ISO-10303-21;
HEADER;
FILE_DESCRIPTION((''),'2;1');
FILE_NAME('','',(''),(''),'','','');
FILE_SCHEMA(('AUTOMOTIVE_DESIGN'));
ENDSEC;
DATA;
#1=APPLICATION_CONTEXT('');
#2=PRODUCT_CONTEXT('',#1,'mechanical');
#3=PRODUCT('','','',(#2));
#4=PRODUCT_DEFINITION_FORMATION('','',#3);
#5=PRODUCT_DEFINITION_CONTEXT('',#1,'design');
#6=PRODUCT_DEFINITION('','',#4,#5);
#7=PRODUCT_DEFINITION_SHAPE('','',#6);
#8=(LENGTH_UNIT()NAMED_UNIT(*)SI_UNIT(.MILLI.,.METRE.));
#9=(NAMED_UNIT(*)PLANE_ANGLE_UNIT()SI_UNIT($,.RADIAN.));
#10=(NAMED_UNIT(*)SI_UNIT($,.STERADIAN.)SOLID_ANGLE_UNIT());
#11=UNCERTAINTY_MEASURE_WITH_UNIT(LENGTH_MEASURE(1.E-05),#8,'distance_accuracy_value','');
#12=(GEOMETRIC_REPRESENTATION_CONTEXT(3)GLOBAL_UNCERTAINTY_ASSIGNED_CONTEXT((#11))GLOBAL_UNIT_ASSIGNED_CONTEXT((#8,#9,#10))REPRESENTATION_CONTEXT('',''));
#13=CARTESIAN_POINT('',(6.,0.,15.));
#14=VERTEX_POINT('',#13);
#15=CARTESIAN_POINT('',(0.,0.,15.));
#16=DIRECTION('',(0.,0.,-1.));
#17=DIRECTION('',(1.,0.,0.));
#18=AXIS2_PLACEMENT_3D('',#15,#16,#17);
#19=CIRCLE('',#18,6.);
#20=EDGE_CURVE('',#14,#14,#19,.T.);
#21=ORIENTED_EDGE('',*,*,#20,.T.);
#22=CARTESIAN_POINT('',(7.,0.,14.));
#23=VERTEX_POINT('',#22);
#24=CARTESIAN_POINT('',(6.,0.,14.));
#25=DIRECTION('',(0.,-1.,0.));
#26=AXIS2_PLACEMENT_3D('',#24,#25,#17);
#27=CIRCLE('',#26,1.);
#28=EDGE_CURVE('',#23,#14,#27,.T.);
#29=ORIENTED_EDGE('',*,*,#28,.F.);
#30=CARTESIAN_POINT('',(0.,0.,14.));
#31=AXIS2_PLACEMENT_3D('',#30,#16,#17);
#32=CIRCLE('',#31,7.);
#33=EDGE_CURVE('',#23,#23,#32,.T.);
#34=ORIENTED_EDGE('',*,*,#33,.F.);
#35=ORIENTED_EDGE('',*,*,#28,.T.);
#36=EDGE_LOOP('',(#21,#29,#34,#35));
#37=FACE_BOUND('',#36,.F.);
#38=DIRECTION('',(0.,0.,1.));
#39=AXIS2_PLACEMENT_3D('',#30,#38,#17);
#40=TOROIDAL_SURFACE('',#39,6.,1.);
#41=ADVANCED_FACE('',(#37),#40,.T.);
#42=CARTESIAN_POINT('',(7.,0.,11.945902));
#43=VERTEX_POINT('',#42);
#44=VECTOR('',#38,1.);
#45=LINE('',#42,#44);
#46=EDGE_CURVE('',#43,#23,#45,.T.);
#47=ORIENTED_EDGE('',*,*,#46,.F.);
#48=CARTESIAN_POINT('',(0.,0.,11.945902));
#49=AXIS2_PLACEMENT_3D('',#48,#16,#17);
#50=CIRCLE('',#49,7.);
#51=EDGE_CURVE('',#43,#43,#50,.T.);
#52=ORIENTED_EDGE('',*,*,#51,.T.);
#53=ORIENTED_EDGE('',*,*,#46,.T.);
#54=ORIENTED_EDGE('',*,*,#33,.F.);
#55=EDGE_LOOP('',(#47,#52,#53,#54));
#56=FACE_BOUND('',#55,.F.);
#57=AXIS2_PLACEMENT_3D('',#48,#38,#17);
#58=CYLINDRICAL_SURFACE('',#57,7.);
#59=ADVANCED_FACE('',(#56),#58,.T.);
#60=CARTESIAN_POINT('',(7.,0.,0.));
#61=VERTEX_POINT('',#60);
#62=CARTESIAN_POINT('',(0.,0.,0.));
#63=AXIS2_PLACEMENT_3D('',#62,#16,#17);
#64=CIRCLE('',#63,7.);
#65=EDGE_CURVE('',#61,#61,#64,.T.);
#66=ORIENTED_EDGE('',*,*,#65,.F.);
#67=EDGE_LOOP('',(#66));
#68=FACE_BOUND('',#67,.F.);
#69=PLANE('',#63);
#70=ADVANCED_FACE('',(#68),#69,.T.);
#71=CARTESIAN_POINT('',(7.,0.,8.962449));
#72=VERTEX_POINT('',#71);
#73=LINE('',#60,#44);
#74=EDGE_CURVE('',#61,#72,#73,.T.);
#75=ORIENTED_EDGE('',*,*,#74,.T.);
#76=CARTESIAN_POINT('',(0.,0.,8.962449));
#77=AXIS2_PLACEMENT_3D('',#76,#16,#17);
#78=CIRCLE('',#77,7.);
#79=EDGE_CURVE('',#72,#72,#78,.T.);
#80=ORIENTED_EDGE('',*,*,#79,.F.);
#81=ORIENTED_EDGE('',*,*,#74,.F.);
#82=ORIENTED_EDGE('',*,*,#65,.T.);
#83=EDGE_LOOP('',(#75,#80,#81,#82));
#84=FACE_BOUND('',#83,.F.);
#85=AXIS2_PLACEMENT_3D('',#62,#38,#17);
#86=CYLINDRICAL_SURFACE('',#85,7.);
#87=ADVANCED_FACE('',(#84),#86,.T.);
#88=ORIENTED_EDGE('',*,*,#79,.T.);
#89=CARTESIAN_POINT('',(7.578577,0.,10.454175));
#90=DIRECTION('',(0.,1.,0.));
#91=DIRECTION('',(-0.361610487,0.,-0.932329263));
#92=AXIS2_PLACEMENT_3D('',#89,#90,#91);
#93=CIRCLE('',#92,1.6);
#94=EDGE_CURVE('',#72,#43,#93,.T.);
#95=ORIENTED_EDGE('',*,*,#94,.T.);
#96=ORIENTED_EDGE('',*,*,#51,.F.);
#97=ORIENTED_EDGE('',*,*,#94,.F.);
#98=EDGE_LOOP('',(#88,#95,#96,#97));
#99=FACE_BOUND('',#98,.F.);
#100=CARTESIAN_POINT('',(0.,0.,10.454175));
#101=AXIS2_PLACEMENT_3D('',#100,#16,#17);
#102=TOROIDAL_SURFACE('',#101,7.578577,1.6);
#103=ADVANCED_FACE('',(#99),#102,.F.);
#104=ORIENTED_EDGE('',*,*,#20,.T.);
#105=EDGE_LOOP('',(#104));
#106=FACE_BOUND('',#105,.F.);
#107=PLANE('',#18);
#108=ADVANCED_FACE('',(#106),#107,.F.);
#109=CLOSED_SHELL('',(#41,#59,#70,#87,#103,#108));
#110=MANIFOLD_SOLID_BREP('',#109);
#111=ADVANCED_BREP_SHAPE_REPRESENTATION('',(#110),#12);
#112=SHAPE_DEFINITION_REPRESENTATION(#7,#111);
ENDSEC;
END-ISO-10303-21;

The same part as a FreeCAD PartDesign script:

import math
import FreeCAD as App
import Part
import Sketcher
Q = App.Units.Quantity


def edges_at(feature, points):
    """Names of the edges that pass closest to the given points."""
    edges = feature.Shape.Edges
    near = lambda p: min(range(len(edges)), key=lambda i: edges[i].distToShape(Part.Vertex(*p))[0])
    return sorted({f"Edge{near(p) + 1}" for p in points})

doc = App.newDocument("Part")
params = doc.addObject("Spreadsheet::Sheet", "Params")
for row, (alias, value) in enumerate([
    ("sketch1_radius", "1.6 mm"),
    ("sketch1_width", "7 mm"),
    ("sketch1_height", "15 mm"),
    ("revolution_angle", "360 deg"),
    ("fillet_radius", "1 mm"),
], start=1):
    params.set(f"A{row}", alias)
    params.set(f"B{row}", "=" + value)
    params.setAlias(f"B{row}", alias)

body = doc.addObject("PartDesign::Body", "Body")

# Sketch on XZ plane
sketch1 = body.newObject("Sketcher::SketchObject", "Sketch")
sketch1.AttachmentSupport = (doc.getObject("XZ_Plane"), [""])
sketch1.MapMode = "FlatFace"
sketch1.addGeometry([
    Part.LineSegment(App.Vector(0, 15, 0), App.Vector(0, 0, 0)),  # 0
    Part.LineSegment(App.Vector(0, 0, 0), App.Vector(7, 0, 0)),  # 1
    Part.LineSegment(App.Vector(7, 0, 0), App.Vector(7, 9, 0)),  # 2
    Part.ArcOfCircle(Part.Circle(App.Vector(7.6, 10.5, 0), App.Vector(0, 0, 1), 1.6), math.radians(111), math.radians(249)),  # 3
    Part.LineSegment(App.Vector(7, 11.9, 0), App.Vector(7, 15, 0)),  # 4
    Part.LineSegment(App.Vector(7, 15, 0), App.Vector(0, 15, 0)),  # 5
], False)
sketch1.addConstraint([
    Sketcher.Constraint("Coincident", 0, 2, 1, 1),
    Sketcher.Constraint("Coincident", 1, 2, 2, 1),
    Sketcher.Constraint("Coincident", 2, 2, 3, 2),
    Sketcher.Constraint("Coincident", 3, 1, 4, 1),
    Sketcher.Constraint("Coincident", 4, 2, 5, 1),
    Sketcher.Constraint("Coincident", 5, 2, 0, 1),
    Sketcher.Constraint("Vertical", 0),
    Sketcher.Constraint("Horizontal", 1),
    Sketcher.Constraint("Vertical", 2),
    Sketcher.Constraint("Vertical", 4),
    Sketcher.Constraint("Horizontal", 5),
    Sketcher.Constraint("Coincident", 0, 2, -1, 1),
    Sketcher.Constraint("Vertical", 2, 2, 3, 1),
    Sketcher.Constraint("Radius", 3, Q("1.6 mm")),
    Sketcher.Constraint("DistanceX", 1, 1, 1, 2, Q("7 mm")),
    Sketcher.Constraint("DistanceY", 0, 2, 0, 1, Q("15 mm")),
    Sketcher.Constraint("DistanceY", 2, 1, 2, 2, Q("8.962449 mm")),
    Sketcher.Constraint("DistanceY", -1, 1, 3, 1, Q("11.945902 mm")),
])
sketch1.setExpression("Constraints[13]", "Params.sketch1_radius")
sketch1.setExpression("Constraints[14]", "Params.sketch1_width")
sketch1.setExpression("Constraints[15]", "Params.sketch1_height")
revolution = body.newObject("PartDesign::Revolution", "Revolution")
revolution.Profile = sketch1
revolution.ReferenceAxis = (sketch1, ["V_Axis"])
revolution.setExpression("Angle", "Params.revolution_angle")
doc.recompute()

fillet = body.newObject("PartDesign::Fillet", "Fillet")
fillet.Base = (revolution, edges_at(revolution, [(-7, 0, 15)]))
fillet.setExpression("Radius", "Params.fillet_radius")

doc.recompute()
